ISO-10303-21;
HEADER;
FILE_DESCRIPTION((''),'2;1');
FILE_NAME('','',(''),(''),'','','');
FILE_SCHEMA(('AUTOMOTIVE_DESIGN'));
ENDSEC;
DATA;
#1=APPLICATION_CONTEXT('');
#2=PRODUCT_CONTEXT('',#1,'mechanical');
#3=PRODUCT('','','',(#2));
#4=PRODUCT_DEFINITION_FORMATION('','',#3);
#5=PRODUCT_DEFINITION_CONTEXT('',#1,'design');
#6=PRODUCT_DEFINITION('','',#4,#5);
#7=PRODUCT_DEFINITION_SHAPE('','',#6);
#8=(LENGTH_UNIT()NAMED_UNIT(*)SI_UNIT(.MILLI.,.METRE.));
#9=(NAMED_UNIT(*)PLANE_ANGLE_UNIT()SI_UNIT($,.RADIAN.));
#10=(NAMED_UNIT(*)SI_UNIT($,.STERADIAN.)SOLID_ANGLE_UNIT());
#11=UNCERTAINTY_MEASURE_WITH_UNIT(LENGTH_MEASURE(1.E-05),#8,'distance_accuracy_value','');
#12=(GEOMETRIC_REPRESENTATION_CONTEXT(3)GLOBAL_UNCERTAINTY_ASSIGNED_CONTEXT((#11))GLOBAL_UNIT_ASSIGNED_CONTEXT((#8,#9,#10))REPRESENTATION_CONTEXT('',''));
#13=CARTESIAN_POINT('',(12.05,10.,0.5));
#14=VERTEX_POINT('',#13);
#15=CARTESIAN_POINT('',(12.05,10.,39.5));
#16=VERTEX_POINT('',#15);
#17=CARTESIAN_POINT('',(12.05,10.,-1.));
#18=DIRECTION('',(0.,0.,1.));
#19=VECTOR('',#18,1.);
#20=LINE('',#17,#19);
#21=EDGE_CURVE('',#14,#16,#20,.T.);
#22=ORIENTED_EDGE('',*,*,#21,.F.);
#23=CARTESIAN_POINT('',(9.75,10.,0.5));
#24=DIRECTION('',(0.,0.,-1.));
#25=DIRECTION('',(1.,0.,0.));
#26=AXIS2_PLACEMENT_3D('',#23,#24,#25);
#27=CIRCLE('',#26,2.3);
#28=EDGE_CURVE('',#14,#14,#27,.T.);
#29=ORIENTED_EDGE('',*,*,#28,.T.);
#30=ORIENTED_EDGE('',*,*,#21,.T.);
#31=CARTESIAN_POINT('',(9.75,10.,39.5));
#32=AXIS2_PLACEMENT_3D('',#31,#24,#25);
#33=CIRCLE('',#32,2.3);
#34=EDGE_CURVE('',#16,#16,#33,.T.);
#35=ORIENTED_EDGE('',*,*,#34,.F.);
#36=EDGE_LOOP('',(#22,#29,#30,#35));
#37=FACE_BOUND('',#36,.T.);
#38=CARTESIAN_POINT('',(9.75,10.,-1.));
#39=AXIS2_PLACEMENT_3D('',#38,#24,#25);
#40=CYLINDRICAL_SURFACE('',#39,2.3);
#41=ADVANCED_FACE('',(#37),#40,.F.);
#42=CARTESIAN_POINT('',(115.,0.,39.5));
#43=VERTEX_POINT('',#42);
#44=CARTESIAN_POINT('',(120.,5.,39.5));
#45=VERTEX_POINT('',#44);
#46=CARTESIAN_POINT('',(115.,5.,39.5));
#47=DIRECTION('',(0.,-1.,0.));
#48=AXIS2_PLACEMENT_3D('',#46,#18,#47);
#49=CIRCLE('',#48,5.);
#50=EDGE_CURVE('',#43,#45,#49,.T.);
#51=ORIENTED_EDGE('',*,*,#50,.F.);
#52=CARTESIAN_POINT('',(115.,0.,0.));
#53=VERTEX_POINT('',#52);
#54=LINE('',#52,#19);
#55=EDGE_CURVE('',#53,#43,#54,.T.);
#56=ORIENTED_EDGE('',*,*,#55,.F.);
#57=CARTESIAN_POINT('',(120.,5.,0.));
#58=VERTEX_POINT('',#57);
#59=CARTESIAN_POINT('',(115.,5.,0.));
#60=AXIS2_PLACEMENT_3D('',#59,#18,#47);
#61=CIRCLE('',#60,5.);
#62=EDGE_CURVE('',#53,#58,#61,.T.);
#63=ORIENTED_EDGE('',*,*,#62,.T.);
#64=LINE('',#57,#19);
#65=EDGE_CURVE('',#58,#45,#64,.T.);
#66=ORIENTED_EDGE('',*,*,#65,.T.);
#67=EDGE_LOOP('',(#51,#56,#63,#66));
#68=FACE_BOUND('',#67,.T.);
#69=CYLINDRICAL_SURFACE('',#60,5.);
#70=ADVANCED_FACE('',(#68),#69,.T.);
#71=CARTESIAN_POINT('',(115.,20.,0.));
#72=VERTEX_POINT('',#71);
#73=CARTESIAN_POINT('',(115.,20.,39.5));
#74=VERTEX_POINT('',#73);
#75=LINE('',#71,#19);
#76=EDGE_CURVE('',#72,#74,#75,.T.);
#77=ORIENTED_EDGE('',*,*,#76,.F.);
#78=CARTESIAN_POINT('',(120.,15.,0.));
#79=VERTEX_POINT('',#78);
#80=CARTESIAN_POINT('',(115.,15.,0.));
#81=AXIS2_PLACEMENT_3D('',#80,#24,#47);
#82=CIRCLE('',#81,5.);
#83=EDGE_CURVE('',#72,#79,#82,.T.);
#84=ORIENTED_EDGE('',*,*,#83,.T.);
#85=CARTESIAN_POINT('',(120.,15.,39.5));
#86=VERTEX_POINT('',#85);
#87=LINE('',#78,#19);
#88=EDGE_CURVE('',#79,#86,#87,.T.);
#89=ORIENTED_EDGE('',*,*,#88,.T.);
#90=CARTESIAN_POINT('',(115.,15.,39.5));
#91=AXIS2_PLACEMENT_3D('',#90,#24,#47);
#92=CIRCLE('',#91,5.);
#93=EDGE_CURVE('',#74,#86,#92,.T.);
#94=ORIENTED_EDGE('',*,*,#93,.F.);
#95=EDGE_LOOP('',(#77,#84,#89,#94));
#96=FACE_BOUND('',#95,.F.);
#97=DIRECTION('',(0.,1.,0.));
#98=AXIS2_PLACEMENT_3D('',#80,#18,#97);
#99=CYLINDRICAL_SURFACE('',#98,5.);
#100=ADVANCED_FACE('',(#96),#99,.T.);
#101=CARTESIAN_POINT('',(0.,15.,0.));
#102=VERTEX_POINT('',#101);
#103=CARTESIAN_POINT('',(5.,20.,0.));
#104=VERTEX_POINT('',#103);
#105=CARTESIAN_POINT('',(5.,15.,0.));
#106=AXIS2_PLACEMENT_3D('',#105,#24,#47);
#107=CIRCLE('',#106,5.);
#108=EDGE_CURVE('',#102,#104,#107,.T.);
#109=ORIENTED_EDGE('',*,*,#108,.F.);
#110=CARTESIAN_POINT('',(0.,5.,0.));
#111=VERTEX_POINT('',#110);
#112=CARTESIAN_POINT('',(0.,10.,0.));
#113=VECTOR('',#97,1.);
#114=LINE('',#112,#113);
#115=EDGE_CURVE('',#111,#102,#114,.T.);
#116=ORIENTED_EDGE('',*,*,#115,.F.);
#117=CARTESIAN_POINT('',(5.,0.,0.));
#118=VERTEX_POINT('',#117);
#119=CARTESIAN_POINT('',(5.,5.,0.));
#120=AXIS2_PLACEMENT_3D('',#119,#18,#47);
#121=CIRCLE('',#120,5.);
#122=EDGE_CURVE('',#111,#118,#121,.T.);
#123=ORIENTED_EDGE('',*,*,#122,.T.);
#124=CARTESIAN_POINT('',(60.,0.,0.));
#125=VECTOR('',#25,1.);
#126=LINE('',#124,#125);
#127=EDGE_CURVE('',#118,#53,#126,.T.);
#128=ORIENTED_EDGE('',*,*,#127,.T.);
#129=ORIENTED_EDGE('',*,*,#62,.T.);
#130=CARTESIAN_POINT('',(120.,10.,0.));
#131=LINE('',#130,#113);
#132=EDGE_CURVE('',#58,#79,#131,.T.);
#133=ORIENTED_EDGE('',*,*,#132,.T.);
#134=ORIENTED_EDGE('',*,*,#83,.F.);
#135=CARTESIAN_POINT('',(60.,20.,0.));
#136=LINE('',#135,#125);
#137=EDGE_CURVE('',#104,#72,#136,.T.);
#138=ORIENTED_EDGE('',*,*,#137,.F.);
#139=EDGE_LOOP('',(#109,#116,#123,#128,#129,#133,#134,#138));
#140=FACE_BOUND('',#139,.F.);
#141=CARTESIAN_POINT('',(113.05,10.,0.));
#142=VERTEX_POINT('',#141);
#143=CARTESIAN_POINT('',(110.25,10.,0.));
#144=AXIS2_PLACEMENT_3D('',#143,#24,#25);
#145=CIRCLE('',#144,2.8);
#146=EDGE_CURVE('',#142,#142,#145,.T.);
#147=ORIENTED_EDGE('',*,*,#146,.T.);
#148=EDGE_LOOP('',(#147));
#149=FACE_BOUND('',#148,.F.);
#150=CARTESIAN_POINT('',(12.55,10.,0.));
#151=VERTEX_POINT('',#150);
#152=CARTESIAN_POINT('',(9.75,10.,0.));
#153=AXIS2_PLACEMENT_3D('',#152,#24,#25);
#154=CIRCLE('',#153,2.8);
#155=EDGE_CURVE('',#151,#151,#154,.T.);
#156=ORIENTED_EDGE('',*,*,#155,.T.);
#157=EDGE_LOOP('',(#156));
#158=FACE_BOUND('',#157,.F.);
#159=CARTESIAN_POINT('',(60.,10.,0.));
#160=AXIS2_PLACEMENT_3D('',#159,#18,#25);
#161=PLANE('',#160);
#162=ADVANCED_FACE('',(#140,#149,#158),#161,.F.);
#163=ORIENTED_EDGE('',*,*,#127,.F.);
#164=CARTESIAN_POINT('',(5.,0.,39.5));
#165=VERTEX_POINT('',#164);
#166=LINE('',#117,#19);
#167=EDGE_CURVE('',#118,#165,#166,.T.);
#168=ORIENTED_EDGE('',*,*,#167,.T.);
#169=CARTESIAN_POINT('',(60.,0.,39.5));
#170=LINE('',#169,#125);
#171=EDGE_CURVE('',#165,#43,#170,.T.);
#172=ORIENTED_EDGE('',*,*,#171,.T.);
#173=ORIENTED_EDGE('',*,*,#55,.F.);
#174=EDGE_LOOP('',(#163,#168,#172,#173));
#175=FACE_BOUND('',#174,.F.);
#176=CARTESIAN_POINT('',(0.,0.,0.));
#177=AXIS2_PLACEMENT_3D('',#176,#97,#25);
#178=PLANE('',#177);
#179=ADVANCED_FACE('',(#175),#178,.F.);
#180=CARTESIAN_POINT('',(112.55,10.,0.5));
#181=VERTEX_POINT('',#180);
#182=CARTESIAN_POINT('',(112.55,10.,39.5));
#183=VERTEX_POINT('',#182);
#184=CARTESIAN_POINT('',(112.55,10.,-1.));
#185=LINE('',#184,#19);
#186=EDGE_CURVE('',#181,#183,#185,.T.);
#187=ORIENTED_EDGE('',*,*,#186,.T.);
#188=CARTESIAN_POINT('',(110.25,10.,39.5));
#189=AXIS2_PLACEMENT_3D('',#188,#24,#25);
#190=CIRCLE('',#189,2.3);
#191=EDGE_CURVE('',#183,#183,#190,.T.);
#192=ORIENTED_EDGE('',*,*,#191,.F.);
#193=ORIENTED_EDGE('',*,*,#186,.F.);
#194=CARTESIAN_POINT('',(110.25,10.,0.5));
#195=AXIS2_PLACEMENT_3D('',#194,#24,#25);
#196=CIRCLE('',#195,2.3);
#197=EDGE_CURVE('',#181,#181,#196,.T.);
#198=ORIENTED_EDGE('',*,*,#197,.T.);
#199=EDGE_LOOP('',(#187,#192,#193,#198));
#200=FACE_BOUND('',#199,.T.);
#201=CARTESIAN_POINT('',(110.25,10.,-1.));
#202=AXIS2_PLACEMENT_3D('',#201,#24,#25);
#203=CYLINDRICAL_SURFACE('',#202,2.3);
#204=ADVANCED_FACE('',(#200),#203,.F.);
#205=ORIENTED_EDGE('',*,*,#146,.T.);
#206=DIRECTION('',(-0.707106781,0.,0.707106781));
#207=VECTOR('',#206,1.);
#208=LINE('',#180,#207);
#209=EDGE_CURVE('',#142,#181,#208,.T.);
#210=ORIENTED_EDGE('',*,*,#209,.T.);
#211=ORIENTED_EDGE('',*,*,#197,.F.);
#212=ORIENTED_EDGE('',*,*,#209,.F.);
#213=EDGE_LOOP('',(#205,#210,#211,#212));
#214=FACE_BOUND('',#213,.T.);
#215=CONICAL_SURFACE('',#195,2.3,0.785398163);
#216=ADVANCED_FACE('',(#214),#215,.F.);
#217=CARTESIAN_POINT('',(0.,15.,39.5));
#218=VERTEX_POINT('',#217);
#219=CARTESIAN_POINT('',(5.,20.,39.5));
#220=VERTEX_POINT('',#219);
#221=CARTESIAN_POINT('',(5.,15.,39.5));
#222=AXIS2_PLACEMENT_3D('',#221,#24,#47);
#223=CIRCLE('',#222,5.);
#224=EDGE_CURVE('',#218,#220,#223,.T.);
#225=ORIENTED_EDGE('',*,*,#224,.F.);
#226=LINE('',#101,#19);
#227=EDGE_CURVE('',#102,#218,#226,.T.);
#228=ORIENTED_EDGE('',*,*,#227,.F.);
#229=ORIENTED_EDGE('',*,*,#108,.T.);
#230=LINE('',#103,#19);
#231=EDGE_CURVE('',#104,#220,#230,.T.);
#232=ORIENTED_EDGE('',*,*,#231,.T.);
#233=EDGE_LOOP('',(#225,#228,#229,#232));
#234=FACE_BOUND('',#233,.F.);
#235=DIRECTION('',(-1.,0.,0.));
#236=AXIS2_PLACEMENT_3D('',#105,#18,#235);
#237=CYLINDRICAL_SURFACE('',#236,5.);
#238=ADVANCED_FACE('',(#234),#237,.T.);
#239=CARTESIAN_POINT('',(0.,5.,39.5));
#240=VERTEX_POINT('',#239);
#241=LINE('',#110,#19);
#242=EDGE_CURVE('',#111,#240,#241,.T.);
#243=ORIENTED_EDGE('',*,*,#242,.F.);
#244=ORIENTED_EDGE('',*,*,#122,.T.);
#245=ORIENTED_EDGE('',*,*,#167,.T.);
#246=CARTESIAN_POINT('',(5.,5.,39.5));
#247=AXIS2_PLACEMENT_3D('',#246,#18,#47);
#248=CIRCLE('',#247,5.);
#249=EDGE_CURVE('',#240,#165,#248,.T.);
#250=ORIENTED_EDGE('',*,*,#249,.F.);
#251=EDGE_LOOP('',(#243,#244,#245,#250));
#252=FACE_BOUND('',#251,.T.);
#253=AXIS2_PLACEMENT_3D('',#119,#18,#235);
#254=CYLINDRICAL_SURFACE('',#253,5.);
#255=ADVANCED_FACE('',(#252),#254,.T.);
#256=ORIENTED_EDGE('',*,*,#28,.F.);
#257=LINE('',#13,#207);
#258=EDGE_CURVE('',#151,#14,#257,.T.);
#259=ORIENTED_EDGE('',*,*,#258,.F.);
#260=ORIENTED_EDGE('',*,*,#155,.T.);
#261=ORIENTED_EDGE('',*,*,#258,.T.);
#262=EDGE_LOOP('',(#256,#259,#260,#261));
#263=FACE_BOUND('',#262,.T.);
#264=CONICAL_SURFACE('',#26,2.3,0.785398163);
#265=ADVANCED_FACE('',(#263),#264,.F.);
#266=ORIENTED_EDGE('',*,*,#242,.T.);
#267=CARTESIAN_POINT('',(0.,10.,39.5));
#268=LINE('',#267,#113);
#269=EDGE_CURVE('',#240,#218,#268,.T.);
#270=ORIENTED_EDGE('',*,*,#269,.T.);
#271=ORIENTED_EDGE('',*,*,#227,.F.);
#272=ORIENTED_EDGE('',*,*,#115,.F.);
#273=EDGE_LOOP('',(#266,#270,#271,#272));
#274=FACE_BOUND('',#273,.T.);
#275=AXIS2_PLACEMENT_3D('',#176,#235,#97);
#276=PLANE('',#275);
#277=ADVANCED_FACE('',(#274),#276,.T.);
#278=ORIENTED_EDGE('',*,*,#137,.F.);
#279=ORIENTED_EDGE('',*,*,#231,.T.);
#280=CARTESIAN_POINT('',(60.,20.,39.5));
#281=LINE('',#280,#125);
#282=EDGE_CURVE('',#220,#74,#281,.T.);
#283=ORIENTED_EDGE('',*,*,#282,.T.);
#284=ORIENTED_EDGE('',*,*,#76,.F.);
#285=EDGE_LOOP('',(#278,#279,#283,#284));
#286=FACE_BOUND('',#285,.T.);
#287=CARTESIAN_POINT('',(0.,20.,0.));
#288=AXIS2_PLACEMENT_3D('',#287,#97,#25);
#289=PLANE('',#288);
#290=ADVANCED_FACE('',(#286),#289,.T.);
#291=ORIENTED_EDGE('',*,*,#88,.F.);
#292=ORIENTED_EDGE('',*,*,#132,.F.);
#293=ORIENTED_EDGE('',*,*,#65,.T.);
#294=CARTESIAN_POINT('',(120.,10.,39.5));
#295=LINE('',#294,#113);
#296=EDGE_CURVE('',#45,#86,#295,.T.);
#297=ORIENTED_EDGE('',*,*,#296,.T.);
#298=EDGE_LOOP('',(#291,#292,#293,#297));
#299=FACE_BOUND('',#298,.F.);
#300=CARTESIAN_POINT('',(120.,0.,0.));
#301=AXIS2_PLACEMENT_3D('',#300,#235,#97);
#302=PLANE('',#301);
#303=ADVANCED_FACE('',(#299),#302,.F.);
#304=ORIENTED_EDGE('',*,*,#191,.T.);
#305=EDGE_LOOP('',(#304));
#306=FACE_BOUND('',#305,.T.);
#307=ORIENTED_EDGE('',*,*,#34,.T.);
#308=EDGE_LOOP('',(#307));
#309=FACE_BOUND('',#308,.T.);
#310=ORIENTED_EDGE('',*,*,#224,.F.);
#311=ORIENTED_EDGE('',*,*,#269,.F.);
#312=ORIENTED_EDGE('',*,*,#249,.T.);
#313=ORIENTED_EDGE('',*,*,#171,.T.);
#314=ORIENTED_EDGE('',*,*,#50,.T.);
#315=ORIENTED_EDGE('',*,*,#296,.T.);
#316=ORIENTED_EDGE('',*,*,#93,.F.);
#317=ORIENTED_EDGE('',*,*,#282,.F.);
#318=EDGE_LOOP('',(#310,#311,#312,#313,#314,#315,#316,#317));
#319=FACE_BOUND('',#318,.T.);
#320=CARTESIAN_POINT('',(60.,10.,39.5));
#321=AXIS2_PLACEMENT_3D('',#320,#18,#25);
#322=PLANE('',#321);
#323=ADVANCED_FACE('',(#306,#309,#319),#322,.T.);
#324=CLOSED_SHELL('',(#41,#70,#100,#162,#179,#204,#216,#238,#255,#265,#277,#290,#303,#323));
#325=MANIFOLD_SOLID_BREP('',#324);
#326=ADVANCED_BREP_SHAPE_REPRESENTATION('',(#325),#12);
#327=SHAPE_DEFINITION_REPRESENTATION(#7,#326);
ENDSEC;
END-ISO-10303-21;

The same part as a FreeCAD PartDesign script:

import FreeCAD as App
import Part
import Sketcher
from FreeCAD import Vector
Q = App.Units.Quantity


def edges_at(feature, points):
    """Names of the edges that pass closest to the given points."""
    edges = feature.Shape.Edges
    near = lambda p: min(range(len(edges)), key=lambda i: edges[i].distToShape(Part.Vertex(*p))[0])
    return sorted({f"Edge{near(p) + 1}" for p in points})

doc = App.newDocument("Part")
body = doc.addObject("PartDesign::Body", "Body")

# Sketch on XY plane
sketch1 = body.newObject("Sketcher::SketchObject", "Sketch")
sketch1.AttachmentSupport = (doc.getObject("XY_Plane"), [""])
sketch1.MapMode = "FlatFace"
sketch1.AttachmentOffset = App.Placement(Vector(0, 0, -1), App.Rotation())
sketch1.addGeometry(Part.Circle(Vector(9.75, 10, 0), Vector(0, 0, 1), 2.3), False)
sketch1.addConstraint(Sketcher.Constraint("Diameter", 0, Q("4.6 mm")))
sketch1.addConstraint(Sketcher.Constraint("DistanceY", -1, 1, 0, 3, Q("10 mm")))
sketch1.addConstraint(Sketcher.Constraint("DistanceX", -1, 1, 0, 3, Q("9.75 mm")))
pad1 = body.newObject("PartDesign::Pad", "Pad")
pad1.Profile = sketch1
pad1.Length = 50
body2 = doc.addObject("PartDesign::Body", "Body001")
body2.AllowCompound = True

# Sketch on XY plane
sketch2 = body2.newObject("Sketcher::SketchObject", "Sketch001")
sketch2.AttachmentSupport = (doc.getObject("XY_Plane001"), [""])
sketch2.MapMode = "FlatFace"
sketch2.AttachmentOffset = App.Placement(Vector(0, 0, -1), App.Rotation())
sketch2.addGeometry(Part.Circle(Vector(110.25, 10, 0), Vector(0, 0, 1), 2.3), False)
sketch2.addConstraint(Sketcher.Constraint("Diameter", 0, Q("4.6 mm")))
sketch2.addConstraint(Sketcher.Constraint("DistanceY", -1, 1, 0, 3, Q("10 mm")))
sketch2.addConstraint(Sketcher.Constraint("DistanceX", -1, 1, 0, 3, Q("110.25 mm")))
pad2 = body2.newObject("PartDesign::Pad", "Pad001")
pad2.Profile = sketch2
pad2.Length = 50
doc.recompute()

boolean = body2.newObject("PartDesign::Boolean", "Boolean")
boolean.Type = "Fuse"
boolean.addObjects([body])
body3 = doc.addObject("PartDesign::Body", "Body002")

# Sketch on XY plane
sketch3 = body3.newObject("Sketcher::SketchObject", "Sketch002")
sketch3.AttachmentSupport = (doc.getObject("XY_Plane002"), [""])
sketch3.MapMode = "FlatFace"
sketch3.addGeometry(Part.LineSegment(Vector(0, 20, 0), Vector(0, 0, 0)), False)
sketch3.addGeometry(Part.LineSegment(Vector(0, 0, 0), Vector(120, 0, 0)), False)
sketch3.addGeometry(Part.LineSegment(Vector(120, 0, 0), Vector(120, 20, 0)), False)
sketch3.addGeometry(Part.LineSegment(Vector(120, 20, 0), Vector(0, 20, 0)), False)
sketch3.addConstraint(Sketcher.Constraint("Coincident", 0, 2, 1, 1))
sketch3.addConstraint(Sketcher.Constraint("Coincident", 1, 2, 2, 1))
sketch3.addConstraint(Sketcher.Constraint("Coincident", 2, 2, 3, 1))
sketch3.addConstraint(Sketcher.Constraint("Coincident", 3, 2, 0, 1))
sketch3.addConstraint(Sketcher.Constraint("Vertical", 0))
sketch3.addConstraint(Sketcher.Constraint("Horizontal", 1))
sketch3.addConstraint(Sketcher.Constraint("Vertical", 2))
sketch3.addConstraint(Sketcher.Constraint("Horizontal", 3))
sketch3.addConstraint(Sketcher.Constraint("Coincident", 0, 2, -1, 1))
sketch3.addConstraint(Sketcher.Constraint("DistanceX", 1, 1, 1, 2, Q("120 mm")))
sketch3.addConstraint(Sketcher.Constraint("DistanceY", 0, 2, 0, 1, Q("20 mm")))
pad3 = body3.newObject("PartDesign::Pad", "Pad002")
pad3.Profile = sketch3
pad3.Length = 39.5
doc.recompute()

boolean2 = body3.newObject("PartDesign::Boolean", "Boolean001")
boolean2.Type = "Cut"
boolean2.addObjects([body2])
doc.recompute()

fillet = body3.newObject("PartDesign::Fillet", "Fillet")
fillet.Base = (boolean2, edges_at(boolean2, [
    (0, 0, 19.75),
    (0, 20, 19.75),
    (120, 0, 19.75),
    (120, 20, 19.75),
]))
fillet.Radius = 5
doc.recompute()

chamfer = body3.newObject("PartDesign::Chamfer", "Chamfer")
chamfer.Base = (fillet, edges_at(fillet, [(107.95, 10, 0), (7.45, 10, 0)]))
chamfer.Size = 0.5

doc.recompute()
